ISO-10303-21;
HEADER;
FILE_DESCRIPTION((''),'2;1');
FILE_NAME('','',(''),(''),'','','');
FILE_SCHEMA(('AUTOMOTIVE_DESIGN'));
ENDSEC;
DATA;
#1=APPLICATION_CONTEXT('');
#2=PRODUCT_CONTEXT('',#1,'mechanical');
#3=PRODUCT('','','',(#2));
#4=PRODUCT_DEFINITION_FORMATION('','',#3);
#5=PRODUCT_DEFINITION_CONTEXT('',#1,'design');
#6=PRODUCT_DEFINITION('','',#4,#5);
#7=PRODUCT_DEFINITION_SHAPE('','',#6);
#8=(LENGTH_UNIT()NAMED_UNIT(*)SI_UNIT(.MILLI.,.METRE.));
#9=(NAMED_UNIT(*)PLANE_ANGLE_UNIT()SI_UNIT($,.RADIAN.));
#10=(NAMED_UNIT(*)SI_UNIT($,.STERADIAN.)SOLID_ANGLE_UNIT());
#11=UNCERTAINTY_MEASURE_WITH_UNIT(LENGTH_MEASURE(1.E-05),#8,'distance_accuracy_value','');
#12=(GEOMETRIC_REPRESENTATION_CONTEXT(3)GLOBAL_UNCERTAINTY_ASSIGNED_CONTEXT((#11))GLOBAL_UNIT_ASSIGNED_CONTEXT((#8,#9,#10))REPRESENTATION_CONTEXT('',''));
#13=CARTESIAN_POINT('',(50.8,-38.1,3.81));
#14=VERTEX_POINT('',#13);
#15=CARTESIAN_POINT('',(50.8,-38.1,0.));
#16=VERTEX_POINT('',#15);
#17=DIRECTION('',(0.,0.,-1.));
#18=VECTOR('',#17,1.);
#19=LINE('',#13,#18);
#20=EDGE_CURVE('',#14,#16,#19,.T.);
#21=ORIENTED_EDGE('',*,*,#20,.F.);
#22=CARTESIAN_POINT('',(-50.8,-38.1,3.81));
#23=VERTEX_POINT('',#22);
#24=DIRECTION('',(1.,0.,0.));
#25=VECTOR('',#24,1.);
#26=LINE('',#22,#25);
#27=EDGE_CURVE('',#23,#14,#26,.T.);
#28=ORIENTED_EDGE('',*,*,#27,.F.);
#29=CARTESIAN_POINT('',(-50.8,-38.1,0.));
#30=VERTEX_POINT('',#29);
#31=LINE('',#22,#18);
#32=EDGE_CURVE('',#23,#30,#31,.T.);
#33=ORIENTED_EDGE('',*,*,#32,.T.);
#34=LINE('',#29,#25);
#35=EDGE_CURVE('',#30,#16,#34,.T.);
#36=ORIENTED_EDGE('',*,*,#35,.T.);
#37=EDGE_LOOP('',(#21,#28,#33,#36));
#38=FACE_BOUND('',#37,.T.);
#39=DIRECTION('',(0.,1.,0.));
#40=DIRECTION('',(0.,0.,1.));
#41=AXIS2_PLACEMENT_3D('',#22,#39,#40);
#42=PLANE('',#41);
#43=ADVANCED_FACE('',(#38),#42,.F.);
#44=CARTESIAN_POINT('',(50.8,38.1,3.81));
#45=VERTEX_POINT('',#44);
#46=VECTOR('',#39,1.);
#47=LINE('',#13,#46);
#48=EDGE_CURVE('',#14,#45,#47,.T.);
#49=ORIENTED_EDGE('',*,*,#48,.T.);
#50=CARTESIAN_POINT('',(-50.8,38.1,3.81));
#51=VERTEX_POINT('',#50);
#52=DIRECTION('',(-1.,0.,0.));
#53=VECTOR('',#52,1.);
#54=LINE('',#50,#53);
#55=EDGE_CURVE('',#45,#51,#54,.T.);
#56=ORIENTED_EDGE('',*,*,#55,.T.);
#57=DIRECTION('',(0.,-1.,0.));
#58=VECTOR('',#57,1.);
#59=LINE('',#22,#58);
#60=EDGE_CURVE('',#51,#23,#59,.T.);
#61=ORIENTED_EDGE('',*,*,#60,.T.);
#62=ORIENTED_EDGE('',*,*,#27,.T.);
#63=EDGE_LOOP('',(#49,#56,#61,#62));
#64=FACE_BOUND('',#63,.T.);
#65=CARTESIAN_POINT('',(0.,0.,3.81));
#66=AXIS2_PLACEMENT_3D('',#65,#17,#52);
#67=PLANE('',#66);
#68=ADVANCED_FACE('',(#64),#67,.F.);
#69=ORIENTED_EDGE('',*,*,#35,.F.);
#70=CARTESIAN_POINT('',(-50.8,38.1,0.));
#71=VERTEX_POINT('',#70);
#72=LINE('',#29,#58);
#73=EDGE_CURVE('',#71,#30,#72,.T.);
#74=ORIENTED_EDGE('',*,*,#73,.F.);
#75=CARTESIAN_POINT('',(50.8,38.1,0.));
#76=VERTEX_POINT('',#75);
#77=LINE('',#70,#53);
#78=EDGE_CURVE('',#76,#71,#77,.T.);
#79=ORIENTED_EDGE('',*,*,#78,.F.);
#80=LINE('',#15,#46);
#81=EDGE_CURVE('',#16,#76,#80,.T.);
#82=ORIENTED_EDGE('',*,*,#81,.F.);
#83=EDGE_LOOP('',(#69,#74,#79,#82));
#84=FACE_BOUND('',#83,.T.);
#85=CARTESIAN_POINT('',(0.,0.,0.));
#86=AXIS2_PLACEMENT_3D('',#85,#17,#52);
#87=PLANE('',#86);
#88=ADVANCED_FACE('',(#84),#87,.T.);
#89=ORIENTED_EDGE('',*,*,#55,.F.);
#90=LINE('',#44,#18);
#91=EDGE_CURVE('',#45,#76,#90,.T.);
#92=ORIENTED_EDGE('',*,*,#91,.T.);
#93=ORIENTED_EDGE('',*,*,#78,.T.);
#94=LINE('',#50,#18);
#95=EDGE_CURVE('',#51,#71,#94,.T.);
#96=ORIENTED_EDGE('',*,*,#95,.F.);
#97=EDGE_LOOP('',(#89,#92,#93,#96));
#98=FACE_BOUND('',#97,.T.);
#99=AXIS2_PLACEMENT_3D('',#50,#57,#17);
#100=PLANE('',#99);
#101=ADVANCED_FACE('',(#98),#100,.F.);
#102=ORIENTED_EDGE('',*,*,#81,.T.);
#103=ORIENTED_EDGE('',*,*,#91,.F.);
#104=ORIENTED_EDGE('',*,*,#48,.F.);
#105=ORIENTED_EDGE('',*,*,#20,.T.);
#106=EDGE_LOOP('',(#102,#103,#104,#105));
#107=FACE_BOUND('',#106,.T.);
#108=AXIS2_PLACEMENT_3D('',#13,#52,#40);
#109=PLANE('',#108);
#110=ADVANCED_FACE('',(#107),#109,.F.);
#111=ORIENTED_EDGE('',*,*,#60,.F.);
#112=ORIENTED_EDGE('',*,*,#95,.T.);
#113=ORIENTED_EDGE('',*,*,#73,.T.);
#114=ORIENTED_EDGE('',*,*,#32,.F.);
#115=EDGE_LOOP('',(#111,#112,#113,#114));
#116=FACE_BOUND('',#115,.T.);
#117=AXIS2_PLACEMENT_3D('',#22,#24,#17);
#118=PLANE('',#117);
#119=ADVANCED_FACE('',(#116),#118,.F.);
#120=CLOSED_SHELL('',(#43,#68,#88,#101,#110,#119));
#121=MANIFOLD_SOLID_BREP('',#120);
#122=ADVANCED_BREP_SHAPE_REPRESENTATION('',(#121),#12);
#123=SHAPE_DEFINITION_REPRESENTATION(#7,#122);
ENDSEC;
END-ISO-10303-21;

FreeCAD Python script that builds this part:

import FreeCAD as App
import Part
import Sketcher
Q = App.Units.Quantity

doc = App.newDocument("Part")
params = doc.addObject("Spreadsheet::Sheet", "Params")
for row, (alias, value) in enumerate([
    ("sketch1_width", "4 in"),
    ("sketch1_height", "3 in"),
    ("pad1_length", "0.15 in"),
], start=1):
    params.set(f"A{row}", alias)
    params.set(f"B{row}", "=" + value)
    params.setAlias(f"B{row}", alias)

body = doc.addObject("PartDesign::Body", "Body")

# Sketch on XY plane
sketch1 = body.newObject("Sketcher::SketchObject", "Sketch")
sketch1.AttachmentSupport = (doc.getObject("XY_Plane"), [""])
sketch1.MapMode = "FlatFace"
sketch1.addGeometry(Part.LineSegment(App.Vector(-51, 38, 0), App.Vector(-51, -38, 0)), False)
sketch1.addGeometry(Part.LineSegment(App.Vector(-51, -38, 0), App.Vector(51, -38, 0)), False)
sketch1.addGeometry(Part.LineSegment(App.Vector(51, -38, 0), App.Vector(51, 38, 0)), False)
sketch1.addGeometry(Part.LineSegment(App.Vector(51, 38, 0), App.Vector(-51, 38, 0)), False)
sketch1.addConstraint(Sketcher.Constraint("Coincident", 0, 2, 1, 1))
sketch1.addConstraint(Sketcher.Constraint("Coincident", 1, 2, 2, 1))
sketch1.addConstraint(Sketcher.Constraint("Coincident", 2, 2, 3, 1))
sketch1.addConstraint(Sketcher.Constraint("Coincident", 3, 2, 0, 1))
sketch1.addConstraint(Sketcher.Constraint("Vertical", 0))
sketch1.addConstraint(Sketcher.Constraint("Horizontal", 1))
sketch1.addConstraint(Sketcher.Constraint("Vertical", 2))
sketch1.addConstraint(Sketcher.Constraint("Horizontal", 3))
sketch1.addConstraint(Sketcher.Constraint("Symmetric", 0, 2, 2, 2, -1, 1))
sketch1.addConstraint(Sketcher.Constraint("DistanceX", 1, 1, 1, 2, Q("4 in")))
sketch1.addConstraint(Sketcher.Constraint("DistanceY", 0, 2, 0, 1, Q("3 in")))
sketch1.setExpression("Constraints[9]", "Params.sketch1_width")
sketch1.setExpression("Constraints[10]", "Params.sketch1_height")
pad1 = body.newObject("PartDesign::Pad", "Pad")
pad1.Profile = sketch1
pad1.setExpression("Length", "Params.pad1_length")

doc.recompute()
